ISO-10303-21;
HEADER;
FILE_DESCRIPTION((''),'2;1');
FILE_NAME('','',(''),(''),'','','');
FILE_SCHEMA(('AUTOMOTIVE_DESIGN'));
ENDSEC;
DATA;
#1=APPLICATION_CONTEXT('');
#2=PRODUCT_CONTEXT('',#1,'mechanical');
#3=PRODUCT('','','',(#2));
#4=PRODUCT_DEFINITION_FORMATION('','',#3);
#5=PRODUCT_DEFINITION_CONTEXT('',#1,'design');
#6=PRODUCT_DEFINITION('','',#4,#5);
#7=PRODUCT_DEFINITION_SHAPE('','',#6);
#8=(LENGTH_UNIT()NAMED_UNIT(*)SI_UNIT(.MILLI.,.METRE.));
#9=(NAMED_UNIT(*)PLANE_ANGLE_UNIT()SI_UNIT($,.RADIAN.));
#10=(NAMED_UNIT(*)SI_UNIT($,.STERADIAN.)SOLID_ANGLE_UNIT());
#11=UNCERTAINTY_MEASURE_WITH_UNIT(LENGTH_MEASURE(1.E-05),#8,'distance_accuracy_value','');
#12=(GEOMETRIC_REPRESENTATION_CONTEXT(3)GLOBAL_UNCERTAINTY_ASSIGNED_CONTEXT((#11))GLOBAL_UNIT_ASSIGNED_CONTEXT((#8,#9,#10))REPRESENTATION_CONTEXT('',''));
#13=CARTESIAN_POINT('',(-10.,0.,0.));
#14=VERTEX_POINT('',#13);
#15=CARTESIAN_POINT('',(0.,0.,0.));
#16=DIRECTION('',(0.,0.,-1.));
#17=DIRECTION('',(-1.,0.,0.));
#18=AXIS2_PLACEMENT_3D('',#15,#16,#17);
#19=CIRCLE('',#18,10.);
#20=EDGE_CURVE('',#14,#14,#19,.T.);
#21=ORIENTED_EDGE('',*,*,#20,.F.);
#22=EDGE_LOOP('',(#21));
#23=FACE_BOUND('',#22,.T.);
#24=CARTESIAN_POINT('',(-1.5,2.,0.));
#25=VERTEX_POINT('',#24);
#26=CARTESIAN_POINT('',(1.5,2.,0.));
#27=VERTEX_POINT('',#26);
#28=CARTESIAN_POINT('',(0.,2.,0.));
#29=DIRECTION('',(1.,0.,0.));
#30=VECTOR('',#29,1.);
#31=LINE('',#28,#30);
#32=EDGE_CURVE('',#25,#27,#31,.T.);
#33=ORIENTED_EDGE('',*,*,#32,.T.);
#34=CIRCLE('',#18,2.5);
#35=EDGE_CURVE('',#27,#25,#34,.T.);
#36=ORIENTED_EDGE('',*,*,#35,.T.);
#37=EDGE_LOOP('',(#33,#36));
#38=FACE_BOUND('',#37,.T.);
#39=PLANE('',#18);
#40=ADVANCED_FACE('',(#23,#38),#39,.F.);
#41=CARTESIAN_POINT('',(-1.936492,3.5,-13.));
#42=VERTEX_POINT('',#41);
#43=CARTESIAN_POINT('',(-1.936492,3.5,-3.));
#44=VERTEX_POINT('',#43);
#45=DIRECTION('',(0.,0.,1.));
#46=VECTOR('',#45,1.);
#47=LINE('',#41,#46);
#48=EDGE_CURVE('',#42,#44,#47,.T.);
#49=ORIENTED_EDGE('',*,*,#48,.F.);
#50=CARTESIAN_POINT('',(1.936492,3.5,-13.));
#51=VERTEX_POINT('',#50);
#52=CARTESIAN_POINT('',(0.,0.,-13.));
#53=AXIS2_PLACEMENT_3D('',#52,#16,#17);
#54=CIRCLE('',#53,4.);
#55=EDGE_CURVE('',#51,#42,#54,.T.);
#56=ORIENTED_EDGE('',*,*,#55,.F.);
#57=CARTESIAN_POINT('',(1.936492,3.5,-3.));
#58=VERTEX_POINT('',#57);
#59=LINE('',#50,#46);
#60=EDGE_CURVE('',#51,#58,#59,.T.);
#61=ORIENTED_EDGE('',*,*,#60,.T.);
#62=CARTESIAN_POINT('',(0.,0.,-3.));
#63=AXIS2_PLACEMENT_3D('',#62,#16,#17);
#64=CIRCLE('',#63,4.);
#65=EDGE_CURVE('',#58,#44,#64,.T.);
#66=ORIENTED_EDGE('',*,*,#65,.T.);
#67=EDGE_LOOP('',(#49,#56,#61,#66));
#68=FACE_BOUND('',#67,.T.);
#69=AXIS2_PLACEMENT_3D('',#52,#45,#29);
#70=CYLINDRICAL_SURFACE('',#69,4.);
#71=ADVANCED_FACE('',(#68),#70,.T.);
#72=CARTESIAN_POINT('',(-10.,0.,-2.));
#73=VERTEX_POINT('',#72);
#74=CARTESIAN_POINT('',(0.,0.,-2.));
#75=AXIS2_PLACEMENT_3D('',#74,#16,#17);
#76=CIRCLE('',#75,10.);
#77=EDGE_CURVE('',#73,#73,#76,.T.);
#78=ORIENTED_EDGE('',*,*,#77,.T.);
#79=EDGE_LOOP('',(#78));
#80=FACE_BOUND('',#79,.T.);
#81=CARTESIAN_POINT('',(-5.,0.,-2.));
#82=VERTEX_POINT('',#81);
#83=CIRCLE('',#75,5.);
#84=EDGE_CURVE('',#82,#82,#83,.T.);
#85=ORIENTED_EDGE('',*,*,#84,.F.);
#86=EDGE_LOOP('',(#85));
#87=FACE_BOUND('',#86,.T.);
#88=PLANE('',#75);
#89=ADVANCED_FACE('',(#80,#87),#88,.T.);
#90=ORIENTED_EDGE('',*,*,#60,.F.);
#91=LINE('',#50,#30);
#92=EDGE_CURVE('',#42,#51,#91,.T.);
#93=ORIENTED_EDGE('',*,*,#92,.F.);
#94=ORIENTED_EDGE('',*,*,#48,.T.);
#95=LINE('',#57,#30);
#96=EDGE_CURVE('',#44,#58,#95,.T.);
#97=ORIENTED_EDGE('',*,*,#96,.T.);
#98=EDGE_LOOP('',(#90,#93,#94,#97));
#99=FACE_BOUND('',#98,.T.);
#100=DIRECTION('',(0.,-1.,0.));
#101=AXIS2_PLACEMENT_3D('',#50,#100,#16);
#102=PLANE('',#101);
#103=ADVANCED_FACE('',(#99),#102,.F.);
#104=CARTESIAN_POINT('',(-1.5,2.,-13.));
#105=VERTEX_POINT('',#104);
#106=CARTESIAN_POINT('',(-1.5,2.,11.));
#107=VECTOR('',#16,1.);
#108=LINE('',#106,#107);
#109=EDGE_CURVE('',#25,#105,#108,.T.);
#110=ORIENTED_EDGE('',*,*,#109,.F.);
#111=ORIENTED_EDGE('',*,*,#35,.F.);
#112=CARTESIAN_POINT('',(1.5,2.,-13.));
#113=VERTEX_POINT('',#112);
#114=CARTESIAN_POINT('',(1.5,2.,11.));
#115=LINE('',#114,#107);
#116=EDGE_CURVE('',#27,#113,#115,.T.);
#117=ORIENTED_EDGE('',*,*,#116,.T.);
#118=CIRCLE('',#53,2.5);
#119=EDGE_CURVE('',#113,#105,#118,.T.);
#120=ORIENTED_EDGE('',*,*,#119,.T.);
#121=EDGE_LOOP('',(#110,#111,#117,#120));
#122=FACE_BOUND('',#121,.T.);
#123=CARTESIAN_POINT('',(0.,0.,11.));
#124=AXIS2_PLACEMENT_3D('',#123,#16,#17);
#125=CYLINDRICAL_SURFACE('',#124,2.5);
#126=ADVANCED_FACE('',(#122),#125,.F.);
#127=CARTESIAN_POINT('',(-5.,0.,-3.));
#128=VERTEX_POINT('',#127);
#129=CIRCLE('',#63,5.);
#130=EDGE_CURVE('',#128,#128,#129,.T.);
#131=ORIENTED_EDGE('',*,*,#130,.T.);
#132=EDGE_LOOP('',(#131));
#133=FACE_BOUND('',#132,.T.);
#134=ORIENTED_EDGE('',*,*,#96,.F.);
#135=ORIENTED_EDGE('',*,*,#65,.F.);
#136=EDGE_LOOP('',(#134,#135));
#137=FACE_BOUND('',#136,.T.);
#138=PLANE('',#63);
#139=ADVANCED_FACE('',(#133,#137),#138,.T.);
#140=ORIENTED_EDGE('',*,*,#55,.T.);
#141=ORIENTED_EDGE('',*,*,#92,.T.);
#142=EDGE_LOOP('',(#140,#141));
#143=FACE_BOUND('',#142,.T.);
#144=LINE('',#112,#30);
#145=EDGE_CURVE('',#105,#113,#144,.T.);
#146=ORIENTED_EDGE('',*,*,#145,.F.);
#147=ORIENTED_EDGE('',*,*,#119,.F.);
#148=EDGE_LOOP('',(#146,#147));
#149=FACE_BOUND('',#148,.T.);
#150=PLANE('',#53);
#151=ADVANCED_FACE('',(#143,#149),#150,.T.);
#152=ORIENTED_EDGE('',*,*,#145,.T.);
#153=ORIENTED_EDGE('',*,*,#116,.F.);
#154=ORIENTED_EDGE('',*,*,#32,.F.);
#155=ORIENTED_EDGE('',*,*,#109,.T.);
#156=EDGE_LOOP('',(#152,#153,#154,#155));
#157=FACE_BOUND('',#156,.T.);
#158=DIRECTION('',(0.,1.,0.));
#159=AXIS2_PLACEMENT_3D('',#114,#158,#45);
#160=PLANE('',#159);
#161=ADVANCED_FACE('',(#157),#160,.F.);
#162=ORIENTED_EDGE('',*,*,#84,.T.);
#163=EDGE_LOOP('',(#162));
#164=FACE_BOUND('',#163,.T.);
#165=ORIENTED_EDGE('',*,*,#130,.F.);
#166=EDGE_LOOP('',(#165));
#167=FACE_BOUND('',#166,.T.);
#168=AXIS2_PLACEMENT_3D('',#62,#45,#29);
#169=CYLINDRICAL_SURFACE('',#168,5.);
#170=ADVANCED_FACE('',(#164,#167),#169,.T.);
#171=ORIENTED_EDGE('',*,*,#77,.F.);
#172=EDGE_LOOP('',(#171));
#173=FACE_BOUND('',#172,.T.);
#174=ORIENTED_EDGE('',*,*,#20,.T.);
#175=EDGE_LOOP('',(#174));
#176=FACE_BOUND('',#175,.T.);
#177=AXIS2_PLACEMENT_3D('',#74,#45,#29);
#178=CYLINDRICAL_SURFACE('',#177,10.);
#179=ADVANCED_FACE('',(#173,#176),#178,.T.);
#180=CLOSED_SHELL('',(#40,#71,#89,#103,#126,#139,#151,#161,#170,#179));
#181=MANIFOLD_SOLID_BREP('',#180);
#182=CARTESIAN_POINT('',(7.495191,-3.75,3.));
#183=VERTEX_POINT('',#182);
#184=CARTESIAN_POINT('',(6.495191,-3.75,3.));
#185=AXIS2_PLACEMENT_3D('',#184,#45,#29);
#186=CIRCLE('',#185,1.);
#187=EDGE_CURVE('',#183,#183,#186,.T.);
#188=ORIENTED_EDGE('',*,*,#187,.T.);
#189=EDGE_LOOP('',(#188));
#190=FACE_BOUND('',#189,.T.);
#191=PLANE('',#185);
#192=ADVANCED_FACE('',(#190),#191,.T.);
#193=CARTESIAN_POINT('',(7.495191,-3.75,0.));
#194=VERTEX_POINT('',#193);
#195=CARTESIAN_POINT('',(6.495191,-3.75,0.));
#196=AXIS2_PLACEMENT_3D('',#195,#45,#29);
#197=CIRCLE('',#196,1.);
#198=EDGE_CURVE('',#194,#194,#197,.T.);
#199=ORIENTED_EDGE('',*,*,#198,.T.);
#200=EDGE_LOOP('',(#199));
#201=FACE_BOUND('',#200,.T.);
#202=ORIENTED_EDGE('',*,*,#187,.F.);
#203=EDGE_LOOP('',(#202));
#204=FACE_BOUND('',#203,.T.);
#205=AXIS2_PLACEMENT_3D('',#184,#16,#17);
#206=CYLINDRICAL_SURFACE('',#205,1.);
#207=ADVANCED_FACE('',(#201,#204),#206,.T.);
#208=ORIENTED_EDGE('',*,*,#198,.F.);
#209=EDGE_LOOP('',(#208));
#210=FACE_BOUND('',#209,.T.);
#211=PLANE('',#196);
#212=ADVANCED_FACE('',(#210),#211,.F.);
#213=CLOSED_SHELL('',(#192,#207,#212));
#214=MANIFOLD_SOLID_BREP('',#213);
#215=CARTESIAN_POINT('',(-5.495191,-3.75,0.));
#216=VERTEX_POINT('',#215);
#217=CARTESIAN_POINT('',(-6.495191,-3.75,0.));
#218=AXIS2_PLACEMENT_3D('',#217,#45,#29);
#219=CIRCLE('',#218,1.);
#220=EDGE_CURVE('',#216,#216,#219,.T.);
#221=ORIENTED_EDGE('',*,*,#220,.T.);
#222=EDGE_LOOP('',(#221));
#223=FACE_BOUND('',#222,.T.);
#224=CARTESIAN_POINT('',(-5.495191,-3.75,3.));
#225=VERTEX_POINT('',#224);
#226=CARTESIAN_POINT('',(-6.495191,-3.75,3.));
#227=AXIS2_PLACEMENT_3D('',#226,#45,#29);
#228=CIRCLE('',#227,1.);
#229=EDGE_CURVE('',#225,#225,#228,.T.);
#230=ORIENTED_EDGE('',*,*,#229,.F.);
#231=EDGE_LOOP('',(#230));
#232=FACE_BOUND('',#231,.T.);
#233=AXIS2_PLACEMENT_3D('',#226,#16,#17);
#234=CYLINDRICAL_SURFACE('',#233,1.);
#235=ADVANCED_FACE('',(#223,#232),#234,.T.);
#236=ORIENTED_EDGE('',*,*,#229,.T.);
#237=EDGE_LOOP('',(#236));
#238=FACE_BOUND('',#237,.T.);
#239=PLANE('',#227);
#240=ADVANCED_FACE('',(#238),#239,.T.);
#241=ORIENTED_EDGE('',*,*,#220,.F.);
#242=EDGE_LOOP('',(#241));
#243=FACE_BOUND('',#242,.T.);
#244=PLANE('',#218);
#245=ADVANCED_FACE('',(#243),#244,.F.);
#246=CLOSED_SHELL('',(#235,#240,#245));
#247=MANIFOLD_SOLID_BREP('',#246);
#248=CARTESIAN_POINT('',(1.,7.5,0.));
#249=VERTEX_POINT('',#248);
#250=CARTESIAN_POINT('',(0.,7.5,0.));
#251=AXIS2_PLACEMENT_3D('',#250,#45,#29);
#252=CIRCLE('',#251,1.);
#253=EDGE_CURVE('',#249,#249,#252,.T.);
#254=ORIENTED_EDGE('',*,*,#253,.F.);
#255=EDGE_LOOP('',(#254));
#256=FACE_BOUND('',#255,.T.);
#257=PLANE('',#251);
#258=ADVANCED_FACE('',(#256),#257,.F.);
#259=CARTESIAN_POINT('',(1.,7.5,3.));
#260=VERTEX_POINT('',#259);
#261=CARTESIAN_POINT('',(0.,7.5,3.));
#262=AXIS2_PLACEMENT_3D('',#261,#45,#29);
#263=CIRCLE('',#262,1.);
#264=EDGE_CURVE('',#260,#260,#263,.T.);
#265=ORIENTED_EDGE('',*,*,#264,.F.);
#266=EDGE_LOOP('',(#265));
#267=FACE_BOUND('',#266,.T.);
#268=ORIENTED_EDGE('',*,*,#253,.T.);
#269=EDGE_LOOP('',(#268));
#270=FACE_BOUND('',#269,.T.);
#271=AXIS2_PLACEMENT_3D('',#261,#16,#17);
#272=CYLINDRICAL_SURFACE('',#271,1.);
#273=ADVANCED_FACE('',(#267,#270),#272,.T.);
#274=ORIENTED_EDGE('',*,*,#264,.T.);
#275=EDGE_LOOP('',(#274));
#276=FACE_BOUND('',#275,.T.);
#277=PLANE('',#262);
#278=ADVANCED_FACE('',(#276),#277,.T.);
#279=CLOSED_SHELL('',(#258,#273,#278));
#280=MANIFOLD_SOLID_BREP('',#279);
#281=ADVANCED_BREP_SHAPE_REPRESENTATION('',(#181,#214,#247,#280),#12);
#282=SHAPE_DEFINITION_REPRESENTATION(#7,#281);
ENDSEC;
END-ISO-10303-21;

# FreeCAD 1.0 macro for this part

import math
import FreeCAD as App
import Part
import Sketcher
from FreeCAD import Vector

doc = App.newDocument("Part")
params = doc.addObject("Spreadsheet::Sheet", "Params")
for row, (alias, value) in enumerate([
    ("sketch1_diameter", "2 mm"),
    ("pad1_length", "3 mm"),
    ("sketch2_diameter", "2 mm"),
    ("pad2_length", "3 mm"),
    ("sketch3_diameter", "2 mm"),
    ("pad3_length", "3 mm"),
    ("sketch4_diameter", "20 mm"),
    ("pad4_length", "2 mm"),
    ("sketch5_diameter", "10 mm"),
    ("pad5_length", "1 mm"),
    ("sketch6_radius", "4 mm"),
    ("pad6_length", "10 mm"),
    ("sketch7_radius", "2.5 mm"),
    ("sketch7_width", "3 mm"),
    ("pocket1_length", "24 mm"),
], start=1):
    params.set(f"A{row}", alias)
    params.set(f"B{row}", "=" + value)
    params.setAlias(f"B{row}", alias)

body = doc.addObject("PartDesign::Body", "Body")

sketch1 = body.newObject("Sketcher::SketchObject", "Sketch")
sketch1.AttachmentSupport = (doc.getObject("XY_Plane"), [""])
sketch1.MapMode = "FlatFace"
sketch1.addGeometry(Part.Circle(Vector(0, 7.5, 0), Vector(0, 0, 1), 1), False)
sketch1.addConstraint(Sketcher.Constraint("PointOnObject", 0, 3, -2))
sketch1.addConstraint(Sketcher.Constraint("Diameter", 0, 2.0))
sketch1.addConstraint(Sketcher.Constraint("DistanceY", -1, 1, 0, 3, 7.5))
sketch1.setExpression("Constraints[1]", "Params.sketch1_diameter")
pad1 = body.newObject("PartDesign::Pad", "Pad")
pad1.Profile = sketch1
pad1.setExpression("Length", "Params.pad1_length")
body2 = doc.addObject("PartDesign::Body", "Body001")

sketch2 = body2.newObject("Sketcher::SketchObject", "Sketch001")
sketch2.AttachmentSupport = (doc.getObject("XY_Plane001"), [""])
sketch2.MapMode = "FlatFace"
sketch2.addGeometry(Part.Circle(Vector(6.5, -3.8, 0), Vector(0, 0, 1), 1), False)
sketch2.addConstraint(Sketcher.Constraint("Diameter", 0, 2.0))
sketch2.addConstraint(Sketcher.Constraint("DistanceY", 0, 3, -1, 1, 3.75))
sketch2.addConstraint(Sketcher.Constraint("DistanceX", -1, 1, 0, 3, 6.495191))
sketch2.setExpression("Constraints[0]", "Params.sketch2_diameter")
pad2 = body2.newObject("PartDesign::Pad", "Pad001")
pad2.Profile = sketch2
pad2.setExpression("Length", "Params.pad2_length")
body3 = doc.addObject("PartDesign::Body", "Body002")

sketch3 = body3.newObject("Sketcher::SketchObject", "Sketch002")
sketch3.AttachmentSupport = (doc.getObject("XY_Plane002"), [""])
sketch3.MapMode = "FlatFace"
sketch3.addGeometry(Part.Circle(Vector(-6.5, -3.8, 0), Vector(0, 0, 1), 1), False)
sketch3.addConstraint(Sketcher.Constraint("Diameter", 0, 2.0))
sketch3.addConstraint(Sketcher.Constraint("DistanceY", 0, 3, -1, 1, 3.75))
sketch3.addConstraint(Sketcher.Constraint("DistanceX", 0, 3, -1, 1, 6.495191))
sketch3.setExpression("Constraints[0]", "Params.sketch3_diameter")
pad3 = body3.newObject("PartDesign::Pad", "Pad002")
pad3.Profile = sketch3
pad3.setExpression("Length", "Params.pad3_length")
body4 = doc.addObject("PartDesign::Body", "Body003")

sketch4 = body4.newObject("Sketcher::SketchObject", "Sketch003")
sketch4.AttachmentSupport = (doc.getObject("XY_Plane003"), [""])
sketch4.MapMode = "FlatFace"
sketch4.addGeometry(Part.Circle(Vector(0, 0, 0), Vector(0, 0, 1), 10), False)
sketch4.addConstraint(Sketcher.Constraint("Coincident", 0, 3, -1, 1))
sketch4.addConstraint(Sketcher.Constraint("Diameter", 0, 20.0))
sketch4.setExpression("Constraints[1]", "Params.sketch4_diameter")
pad4 = body4.newObject("PartDesign::Pad", "Pad003")
pad4.Profile = sketch4
pad4.setExpression("Length", "Params.pad4_length")
pad4.Reversed = True

sketch5 = body4.newObject("Sketcher::SketchObject", "Sketch004")
sketch5.AttachmentSupport = (doc.getObject("XY_Plane003"), [""])
sketch5.MapMode = "FlatFace"
sketch5.AttachmentOffset = App.Placement(Vector(0, 0, -2), App.Rotation())
sketch5.addGeometry(Part.Circle(Vector(0, 0, 0), Vector(0, 0, 1), 5), False)
sketch5.addConstraint(Sketcher.Constraint("Coincident", 0, 3, -1, 1))
sketch5.addConstraint(Sketcher.Constraint("Diameter", 0, 10.0))
sketch5.setExpression("Constraints[1]", "Params.sketch5_diameter")
pad5 = body4.newObject("PartDesign::Pad", "Pad004")
pad5.Profile = sketch5
pad5.setExpression("Length", "Params.pad5_length")
pad5.Reversed = True

sketch6 = body4.newObject("Sketcher::SketchObject", "Sketch005")
sketch6.AttachmentSupport = (doc.getObject("XY_Plane003"), [""])
sketch6.MapMode = "FlatFace"
sketch6.AttachmentOffset = App.Placement(Vector(0, 0, -3), App.Rotation())
sketch6.addGeometry(Part.LineSegment(Vector(-1.9, 3.5, 0), Vector(1.9, 3.5, 0)), False)
sketch6.addGeometry(Part.ArcOfCircle(Part.Circle(Vector(0, 0, 0), Vector(0, 0, 1), 4), math.radians(119), math.radians(421)), False)
sketch6.addConstraint(Sketcher.Constraint("Coincident", 0, 1, 1, 1))
sketch6.addConstraint(Sketcher.Constraint("Coincident", 1, 2, 0, 2))
sketch6.addConstraint(Sketcher.Constraint("Horizontal", 0))
sketch6.addConstraint(Sketcher.Constraint("Coincident", 1, 3, -1, 1))
sketch6.addConstraint(Sketcher.Constraint("Radius", 1, 4.0))
sketch6.addConstraint(Sketcher.Constraint("DistanceY", -1, 1, 0, 1, 3.5))
sketch6.setExpression("Constraints[4]", "Params.sketch6_radius")
pad6 = body4.newObject("PartDesign::Pad", "Pad005")
pad6.Profile = sketch6
pad6.setExpression("Length", "Params.pad6_length")
pad6.Reversed = True

sketch7 = body4.newObject("Sketcher::SketchObject", "Sketch006")
sketch7.AttachmentSupport = (doc.getObject("XY_Plane003"), [""])
sketch7.MapMode = "FlatFace"
sketch7.AttachmentOffset = App.Placement(Vector(0, 0, -13), App.Rotation())
sketch7.addGeometry(Part.LineSegment(Vector(-1.5, 2, 0), Vector(1.5, 2, 0)), False)
sketch7.addGeometry(Part.ArcOfCircle(Part.Circle(Vector(0, 0, 0), Vector(0, 0, 1), 2.5), math.radians(127), math.radians(413)), False)
sketch7.addConstraint(Sketcher.Constraint("Coincident", 0, 1, 1, 1))
sketch7.addConstraint(Sketcher.Constraint("Coincident", 1, 2, 0, 2))
sketch7.addConstraint(Sketcher.Constraint("Horizontal", 0))
sketch7.addConstraint(Sketcher.Constraint("Coincident", 1, 3, -1, 1))
sketch7.addConstraint(Sketcher.Constraint("Radius", 1, 2.5))
sketch7.addConstraint(Sketcher.Constraint("DistanceX", 0, 1, 0, 2, 3.0))
sketch7.setExpression("Constraints[4]", "Params.sketch7_radius")
sketch7.setExpression("Constraints[5]", "Params.sketch7_width")
pocket1 = body4.newObject("PartDesign::Pocket", "Pocket")
pocket1.Profile = sketch7
pocket1.setExpression("Length", "Params.pocket1_length")
pocket1.Reversed = True

doc.recompute()
